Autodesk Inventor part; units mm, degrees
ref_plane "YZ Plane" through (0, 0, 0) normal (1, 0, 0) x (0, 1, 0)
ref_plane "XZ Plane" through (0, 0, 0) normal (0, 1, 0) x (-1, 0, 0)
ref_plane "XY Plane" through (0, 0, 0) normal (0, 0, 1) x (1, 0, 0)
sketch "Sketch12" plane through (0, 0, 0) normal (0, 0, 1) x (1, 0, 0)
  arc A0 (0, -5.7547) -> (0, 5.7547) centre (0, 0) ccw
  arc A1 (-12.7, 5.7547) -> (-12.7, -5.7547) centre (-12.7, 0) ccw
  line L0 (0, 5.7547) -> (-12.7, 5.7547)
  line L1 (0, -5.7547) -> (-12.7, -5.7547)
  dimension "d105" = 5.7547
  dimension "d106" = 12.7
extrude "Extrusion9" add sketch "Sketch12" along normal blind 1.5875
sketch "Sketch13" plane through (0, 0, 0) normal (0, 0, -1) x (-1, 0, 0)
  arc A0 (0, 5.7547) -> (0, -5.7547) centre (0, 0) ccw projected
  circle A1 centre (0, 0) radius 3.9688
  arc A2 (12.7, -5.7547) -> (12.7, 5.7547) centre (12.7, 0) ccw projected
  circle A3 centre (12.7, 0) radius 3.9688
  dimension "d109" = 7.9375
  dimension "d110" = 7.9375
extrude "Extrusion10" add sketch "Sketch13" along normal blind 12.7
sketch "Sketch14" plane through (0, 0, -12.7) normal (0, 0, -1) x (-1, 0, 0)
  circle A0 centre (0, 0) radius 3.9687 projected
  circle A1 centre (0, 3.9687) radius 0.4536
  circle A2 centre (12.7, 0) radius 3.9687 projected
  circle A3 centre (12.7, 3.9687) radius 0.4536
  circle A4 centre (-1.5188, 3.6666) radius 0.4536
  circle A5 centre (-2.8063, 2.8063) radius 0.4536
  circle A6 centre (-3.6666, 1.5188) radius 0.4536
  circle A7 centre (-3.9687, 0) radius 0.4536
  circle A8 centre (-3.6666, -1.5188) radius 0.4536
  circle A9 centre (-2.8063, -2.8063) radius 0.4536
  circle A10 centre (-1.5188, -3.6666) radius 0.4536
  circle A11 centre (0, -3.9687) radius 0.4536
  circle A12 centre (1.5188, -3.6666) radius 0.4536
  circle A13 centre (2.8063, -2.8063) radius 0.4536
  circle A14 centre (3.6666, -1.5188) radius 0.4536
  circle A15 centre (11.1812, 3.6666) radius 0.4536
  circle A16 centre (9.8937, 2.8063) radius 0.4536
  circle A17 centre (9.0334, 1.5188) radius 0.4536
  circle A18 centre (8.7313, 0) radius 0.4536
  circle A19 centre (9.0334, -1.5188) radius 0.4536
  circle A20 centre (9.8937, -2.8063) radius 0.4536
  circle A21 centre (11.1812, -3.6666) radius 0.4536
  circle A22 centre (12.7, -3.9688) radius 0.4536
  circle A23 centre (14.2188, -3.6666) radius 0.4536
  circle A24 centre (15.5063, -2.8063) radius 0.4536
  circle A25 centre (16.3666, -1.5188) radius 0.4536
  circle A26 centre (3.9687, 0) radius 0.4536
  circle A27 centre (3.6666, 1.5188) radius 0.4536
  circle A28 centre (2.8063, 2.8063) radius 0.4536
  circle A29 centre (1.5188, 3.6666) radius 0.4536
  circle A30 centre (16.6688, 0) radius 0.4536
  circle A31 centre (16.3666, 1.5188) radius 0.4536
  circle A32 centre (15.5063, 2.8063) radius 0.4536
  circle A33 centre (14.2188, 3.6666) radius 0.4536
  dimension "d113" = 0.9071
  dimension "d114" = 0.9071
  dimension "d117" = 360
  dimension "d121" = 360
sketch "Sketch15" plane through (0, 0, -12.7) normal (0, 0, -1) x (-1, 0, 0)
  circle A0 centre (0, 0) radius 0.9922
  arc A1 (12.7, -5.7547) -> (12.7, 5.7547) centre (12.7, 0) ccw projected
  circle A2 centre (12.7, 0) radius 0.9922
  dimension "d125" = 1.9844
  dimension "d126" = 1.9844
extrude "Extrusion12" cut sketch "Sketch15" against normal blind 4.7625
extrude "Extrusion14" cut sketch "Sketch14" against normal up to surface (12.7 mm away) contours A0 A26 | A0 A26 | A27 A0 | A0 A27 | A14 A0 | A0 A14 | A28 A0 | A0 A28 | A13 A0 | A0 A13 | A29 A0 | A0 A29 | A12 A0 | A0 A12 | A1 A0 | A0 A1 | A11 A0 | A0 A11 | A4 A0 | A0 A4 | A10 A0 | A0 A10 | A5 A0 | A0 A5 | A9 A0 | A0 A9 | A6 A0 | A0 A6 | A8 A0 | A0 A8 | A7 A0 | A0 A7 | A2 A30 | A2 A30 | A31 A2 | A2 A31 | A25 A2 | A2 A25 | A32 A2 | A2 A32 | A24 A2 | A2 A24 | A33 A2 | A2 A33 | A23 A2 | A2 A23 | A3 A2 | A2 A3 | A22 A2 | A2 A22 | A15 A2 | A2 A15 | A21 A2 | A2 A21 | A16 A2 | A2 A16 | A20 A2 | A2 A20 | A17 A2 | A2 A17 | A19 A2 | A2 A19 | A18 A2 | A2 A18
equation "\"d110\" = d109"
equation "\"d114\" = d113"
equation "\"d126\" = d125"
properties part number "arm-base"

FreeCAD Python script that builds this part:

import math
import FreeCAD as App
import Part
import Sketcher
from FreeCAD import Vector
Q = App.Units.Quantity

doc = App.newDocument("Part")
body = doc.addObject("PartDesign::Body", "Body")

# Sketch on XY plane
sketch1 = doc.addObject("Sketcher::SketchObject", "Sketch")
body.addObject(sketch1)
sketch1.AttachmentSupport = (doc.XY_Plane, [""])
sketch1.MapMode = "FlatFace"
sketch1.addGeometry([
    Part.LineSegment(Vector(-13, -6, 0), Vector(0, -6, 0)),
    Part.ArcOfCircle(Part.Circle(Vector(0, 0, 0), Vector(0, 0, 1), 6), math.radians(-90), math.radians(90)),
    Part.LineSegment(Vector(0, 6, 0), Vector(-13, 6, 0)),
    Part.ArcOfCircle(Part.Circle(Vector(-13, 0, 0), Vector(0, 0, 1), 6), math.radians(90), math.radians(270)),
], False)
sketch1.addConstraint([
    Sketcher.Constraint("Tangent", 0, 2, 1, 1),
    Sketcher.Constraint("Tangent", 1, 2, 2, 1),
    Sketcher.Constraint("Tangent", 2, 2, 3, 1),
    Sketcher.Constraint("Tangent", 3, 2, 0, 1),
    Sketcher.Constraint("Horizontal", 0),
    Sketcher.Constraint("Horizontal", 2),
    Sketcher.Constraint("Coincident", 1, 3, -1, 1),
    Sketcher.Constraint("DistanceX", 0, 1, 0, 2, Q("0.5 in")),
    Sketcher.Constraint("Radius", 1, Q("5.7547 mm")),
])
pad1 = doc.addObject("PartDesign::Pad", "Pad")
body.addObject(pad1)
pad1.Profile = sketch1
pad1.Length = Q("0.0625 in")

# Sketch on XY plane
sketch2 = doc.addObject("Sketcher::SketchObject", "Sketch001")
body.addObject(sketch2)
sketch2.AttachmentSupport = (doc.XY_Plane, [""])
sketch2.MapMode = "FlatFace"
sketch2.addGeometry([
    Part.Circle(Vector(0, 0, 0), Vector(0, 0, 1), 4),
    Part.Circle(Vector(-12.7, 0, 0), Vector(0, 0, 1), 4),
], False)
sketch2.addConstraint([
    Sketcher.Constraint("Coincident", 0, 3, -1, 1),
    Sketcher.Constraint("Equal", 0, 1),
    Sketcher.Constraint("PointOnObject", 1, 3, -1),
    Sketcher.Constraint("Diameter", 0, Q("0.3125 in")),
    Sketcher.Constraint("DistanceX", 1, 3, -1, 1, Q("0.5 in")),
])
pad2 = doc.addObject("PartDesign::Pad", "Pad001")
body.addObject(pad2)
pad2.Profile = sketch2
pad2.Length = Q("0.5 in")
pad2.Reversed = True

# Sketch on XY plane
sketch3 = doc.addObject("Sketcher::SketchObject", "Sketch002")
body.addObject(sketch3)
sketch3.AttachmentSupport = (doc.XY_Plane, [""])
sketch3.MapMode = "FlatFace"
sketch3.AttachmentOffset = App.Placement(Vector(0, 0, -0.5 * 25.4), App.Rotation())
sketch3.addGeometry([
    Part.Circle(Vector(0, 0, 0), Vector(0, 0, 1), 1),
    Part.Circle(Vector(-12.7, 0, 0), Vector(0, 0, 1), 1),
], False)
sketch3.addConstraint([
    Sketcher.Constraint("Coincident", 0, 3, -1, 1),
    Sketcher.Constraint("Equal", 0, 1),
    Sketcher.Constraint("PointOnObject", 1, 3, -1),
    Sketcher.Constraint("Diameter", 0, Q("0.078126 in")),
    Sketcher.Constraint("DistanceX", 1, 3, -1, 1, Q("0.5 in")),
])
pocket1 = doc.addObject("PartDesign::Pocket", "Pocket")
body.addObject(pocket1)
pocket1.Profile = sketch3
pocket1.Length = Q("0.1875 in")
pocket1.Reversed = True

# Sketch on XY plane
sketch4 = doc.addObject("Sketcher::SketchObject", "Sketch003")
body.addObject(sketch4)
sketch4.AttachmentSupport = (doc.XY_Plane, [""])
sketch4.MapMode = "FlatFace"
sketch4.AttachmentOffset = App.Placement(Vector(0, 0, -0.5 * 25.4), App.Rotation())
sketch4.addGeometry([
    Part.Circle(Vector(-3.97, 0, 0), Vector(0, 0, 1), 0.45),  # 0
    Part.Circle(Vector(-3.67, 1.52, 0), Vector(0, 0, 1), 0.45),  # 1
    Part.Circle(Vector(-3.67, -1.52, 0), Vector(0, 0, 1), 0.45),  # 2
    Part.Circle(Vector(-2.81, 2.81, 0), Vector(0, 0, 1), 0.45),  # 3
    Part.Circle(Vector(-2.81, -2.81, 0), Vector(0, 0, 1), 0.45),  # 4
    Part.Circle(Vector(-1.52, 3.67, 0), Vector(0, 0, 1), 0.45),  # 5
    Part.Circle(Vector(-1.52, -3.67, 0), Vector(0, 0, 1), 0.45),  # 6
    Part.Circle(Vector(0, 3.97, 0), Vector(0, 0, 1), 0.45),  # 7
    Part.Circle(Vector(0, -3.97, 0), Vector(0, 0, 1), 0.45),  # 8
    Part.Circle(Vector(1.52, 3.67, 0), Vector(0, 0, 1), 0.45),  # 9
    Part.Circle(Vector(1.52, -3.67, 0), Vector(0, 0, 1), 0.45),  # 10
    Part.Circle(Vector(2.81, 2.81, 0), Vector(0, 0, 1), 0.45),  # 11
    Part.Circle(Vector(2.81, -2.81, 0), Vector(0, 0, 1), 0.45),  # 12
    Part.Circle(Vector(3.67, 1.52, 0), Vector(0, 0, 1), 0.45),  # 13
    Part.Circle(Vector(3.67, -1.52, 0), Vector(0, 0, 1), 0.45),  # 14
    Part.Circle(Vector(3.97, 0, 0), Vector(0, 0, 1), 0.45),  # 15
    Part.Circle(Vector(-16.67, 0, 0), Vector(0, 0, 1), 0.45),  # 16
    Part.Circle(Vector(-16.37, 1.52, 0), Vector(0, 0, 1), 0.45),  # 17
    Part.Circle(Vector(-16.37, -1.52, 0), Vector(0, 0, 1), 0.45),  # 18
    Part.Circle(Vector(-15.51, 2.81, 0), Vector(0, 0, 1), 0.45),  # 19
    Part.Circle(Vector(-15.51, -2.81, 0), Vector(0, 0, 1), 0.45),  # 20
    Part.Circle(Vector(-14.22, 3.67, 0), Vector(0, 0, 1), 0.45),  # 21
    Part.Circle(Vector(-14.22, -3.67, 0), Vector(0, 0, 1), 0.45),  # 22
    Part.Circle(Vector(-12.7, 3.97, 0), Vector(0, 0, 1), 0.45),  # 23
    Part.Circle(Vector(-12.7, -3.97, 0), Vector(0, 0, 1), 0.45),  # 24
    Part.Circle(Vector(-11.18, 3.67, 0), Vector(0, 0, 1), 0.45),  # 25
    Part.Circle(Vector(-11.18, -3.67, 0), Vector(0, 0, 1), 0.45),  # 26
    Part.Circle(Vector(-9.89, 2.81, 0), Vector(0, 0, 1), 0.45),  # 27
    Part.Circle(Vector(-9.89, -2.81, 0), Vector(0, 0, 1), 0.45),  # 28
    Part.Circle(Vector(-9.03, 1.52, 0), Vector(0, 0, 1), 0.45),  # 29
    Part.Circle(Vector(-9.03, -1.52, 0), Vector(0, 0, 1), 0.45),  # 30
    Part.Circle(Vector(-8.73, 0, 0), Vector(0, 0, 1), 0.45),  # 31
], False)
sketch4.addConstraint([
    Sketcher.Constraint("Equal", 0, 1),
    Sketcher.Constraint("Equal", 1, 2),
    Sketcher.Constraint("Equal", 2, 3),
    Sketcher.Constraint("Equal", 3, 4),
    Sketcher.Constraint("Equal", 4, 5),
    Sketcher.Constraint("Equal", 5, 6),
    Sketcher.Constraint("Equal", 6, 7),
    Sketcher.Constraint("Equal", 7, 8),
    Sketcher.Constraint("Equal", 8, 9),
    Sketcher.Constraint("Equal", 9, 10),
    Sketcher.Constraint("Equal", 10, 11),
    Sketcher.Constraint("Equal", 11, 12),
    Sketcher.Constraint("Equal", 12, 13),
    Sketcher.Constraint("Equal", 13, 14),
    Sketcher.Constraint("Equal", 14, 15),
    Sketcher.Constraint("Equal", 15, 16),
    Sketcher.Constraint("Equal", 16, 17),
    Sketcher.Constraint("Equal", 17, 18),
    Sketcher.Constraint("Equal", 18, 19),
    Sketcher.Constraint("Equal", 19, 20),
    Sketcher.Constraint("Equal", 20, 21),
    Sketcher.Constraint("Equal", 21, 22),
    Sketcher.Constraint("Equal", 22, 23),
    Sketcher.Constraint("Equal", 23, 24),
    Sketcher.Constraint("Equal", 24, 25),
    Sketcher.Constraint("Equal", 25, 26),
    Sketcher.Constraint("Equal", 26, 27),
    Sketcher.Constraint("Equal", 27, 28),
    Sketcher.Constraint("Equal", 28, 29),
    Sketcher.Constraint("Equal", 29, 30),
    Sketcher.Constraint("Equal", 30, 31),
    Sketcher.Constraint("Symmetric", 7, 3, 8, 3, -1, 1),
    Sketcher.Constraint("Symmetric", 6, 3, 9, 3, -1, 1),
    Sketcher.Constraint("Symmetric", 5, 3, 10, 3, -1, 1),
    Sketcher.Constraint("Symmetric", 4, 3, 11, 3, -1, 1),
    Sketcher.Constraint("Symmetric", 3, 3, 12, 3, -1, 1),
    Sketcher.Constraint("Symmetric", 2, 3, 13, 3, -1, 1),
    Sketcher.Constraint("Symmetric", 1, 3, 14, 3, -1, 1),
    Sketcher.Constraint("Symmetric", 0, 3, 15, 3, -1, 1),
    Sketcher.Constraint("Symmetric", 5, 3, 9, 3, -2),
    Sketcher.Constraint("Symmetric", 3, 3, 11, 3, -2),
    Sketcher.Constraint("Symmetric", 1, 3, 13, 3, -2),
    Sketcher.Constraint("Symmetric", 17, 3, 18, 3, -1),
    Sketcher.Constraint("Symmetric", 19, 3, 20, 3, -1),
    Sketcher.Constraint("Symmetric", 21, 3, 22, 3, -1),
    Sketcher.Constraint("Symmetric", 23, 3, 24, 3, -1),
    Sketcher.Constraint("Symmetric", 25, 3, 26, 3, -1),
    Sketcher.Constraint("Symmetric", 27, 3, 28, 3, -1),
    Sketcher.Constraint("Symmetric", 29, 3, 30, 3, -1),
    Sketcher.Constraint("PointOnObject", 0, 3, -1),
    Sketcher.Constraint("PointOnObject", 7, 3, -2),
    Sketcher.Constraint("PointOnObject", 16, 3, -1),
    Sketcher.Constraint("PointOnObject", 31, 3, -1),
    Sketcher.Constraint("Horizontal", 13, 3, 17, 3),
    Sketcher.Constraint("Horizontal", 11, 3, 19, 3),
    Sketcher.Constraint("Horizontal", 9, 3, 21, 3),
    Sketcher.Constraint("Horizontal", 7, 3, 23, 3),
    Sketcher.Constraint("Horizontal", 21, 3, 25, 3),
    Sketcher.Constraint("Horizontal", 19, 3, 27, 3),
    Sketcher.Constraint("Horizontal", 17, 3, 29, 3),
    Sketcher.Constraint("Diameter", 0, Q("0.9072 mm")),
    Sketcher.Constraint("DistanceX", 23, 3, -1, 1, Q("0.5 in")),
    Sketcher.Constraint("DistanceX", 16, 3, 0, 3, Q("0.5 in")),
    Sketcher.Constraint("DistanceX", 17, 3, 1, 3, Q("0.5 in")),
    Sketcher.Constraint("DistanceX", 0, 3, -1, 1, Q("0.156248 in")),
    Sketcher.Constraint("DistanceY", -1, 1, 7, 3, Q("0.156248 in")),
    Sketcher.Constraint("DistanceX", 31, 3, -1, 1, Q("0.343752 in")),
    Sketcher.Constraint("DistanceY", -1, 1, 1, 3, Q("0.0598 in")),
    Sketcher.Constraint("DistanceX", 5, 3, -1, 1, Q("0.0598 in")),
    Sketcher.Constraint("DistanceX", 21, 3, -1, 1, Q("0.5598 in")),
    Sketcher.Constraint("DistanceX", 25, 3, -1, 1, Q("0.4402 in")),
    Sketcher.Constraint("DistanceX", 0, 3, 1, 3, Q("0.0119 in")),
    Sketcher.Constraint("DistanceY", 1, 3, 3, 3, Q("0.0507 in")),
    Sketcher.Constraint("DistanceX", 3, 3, 5, 3, Q("0.0507 in")),
    Sketcher.Constraint("DistanceY", 5, 3, 7, 3, Q("0.0119 in")),
    Sketcher.Constraint("DistanceX", 19, 3, 21, 3, Q("0.0507 in")),
    Sketcher.Constraint("DistanceX", 25, 3, 27, 3, Q("0.0507 in")),
    Sketcher.Constraint("DistanceX", 29, 3, 0, 3, Q("0.1994 in")),
])
pocket2 = doc.addObject("PartDesign::Pocket", "Pocket001")
body.addObject(pocket2)
pocket2.Profile = sketch4
pocket2.Length = Q("0.5 in")
pocket2.Reversed = True

doc.recompute()
